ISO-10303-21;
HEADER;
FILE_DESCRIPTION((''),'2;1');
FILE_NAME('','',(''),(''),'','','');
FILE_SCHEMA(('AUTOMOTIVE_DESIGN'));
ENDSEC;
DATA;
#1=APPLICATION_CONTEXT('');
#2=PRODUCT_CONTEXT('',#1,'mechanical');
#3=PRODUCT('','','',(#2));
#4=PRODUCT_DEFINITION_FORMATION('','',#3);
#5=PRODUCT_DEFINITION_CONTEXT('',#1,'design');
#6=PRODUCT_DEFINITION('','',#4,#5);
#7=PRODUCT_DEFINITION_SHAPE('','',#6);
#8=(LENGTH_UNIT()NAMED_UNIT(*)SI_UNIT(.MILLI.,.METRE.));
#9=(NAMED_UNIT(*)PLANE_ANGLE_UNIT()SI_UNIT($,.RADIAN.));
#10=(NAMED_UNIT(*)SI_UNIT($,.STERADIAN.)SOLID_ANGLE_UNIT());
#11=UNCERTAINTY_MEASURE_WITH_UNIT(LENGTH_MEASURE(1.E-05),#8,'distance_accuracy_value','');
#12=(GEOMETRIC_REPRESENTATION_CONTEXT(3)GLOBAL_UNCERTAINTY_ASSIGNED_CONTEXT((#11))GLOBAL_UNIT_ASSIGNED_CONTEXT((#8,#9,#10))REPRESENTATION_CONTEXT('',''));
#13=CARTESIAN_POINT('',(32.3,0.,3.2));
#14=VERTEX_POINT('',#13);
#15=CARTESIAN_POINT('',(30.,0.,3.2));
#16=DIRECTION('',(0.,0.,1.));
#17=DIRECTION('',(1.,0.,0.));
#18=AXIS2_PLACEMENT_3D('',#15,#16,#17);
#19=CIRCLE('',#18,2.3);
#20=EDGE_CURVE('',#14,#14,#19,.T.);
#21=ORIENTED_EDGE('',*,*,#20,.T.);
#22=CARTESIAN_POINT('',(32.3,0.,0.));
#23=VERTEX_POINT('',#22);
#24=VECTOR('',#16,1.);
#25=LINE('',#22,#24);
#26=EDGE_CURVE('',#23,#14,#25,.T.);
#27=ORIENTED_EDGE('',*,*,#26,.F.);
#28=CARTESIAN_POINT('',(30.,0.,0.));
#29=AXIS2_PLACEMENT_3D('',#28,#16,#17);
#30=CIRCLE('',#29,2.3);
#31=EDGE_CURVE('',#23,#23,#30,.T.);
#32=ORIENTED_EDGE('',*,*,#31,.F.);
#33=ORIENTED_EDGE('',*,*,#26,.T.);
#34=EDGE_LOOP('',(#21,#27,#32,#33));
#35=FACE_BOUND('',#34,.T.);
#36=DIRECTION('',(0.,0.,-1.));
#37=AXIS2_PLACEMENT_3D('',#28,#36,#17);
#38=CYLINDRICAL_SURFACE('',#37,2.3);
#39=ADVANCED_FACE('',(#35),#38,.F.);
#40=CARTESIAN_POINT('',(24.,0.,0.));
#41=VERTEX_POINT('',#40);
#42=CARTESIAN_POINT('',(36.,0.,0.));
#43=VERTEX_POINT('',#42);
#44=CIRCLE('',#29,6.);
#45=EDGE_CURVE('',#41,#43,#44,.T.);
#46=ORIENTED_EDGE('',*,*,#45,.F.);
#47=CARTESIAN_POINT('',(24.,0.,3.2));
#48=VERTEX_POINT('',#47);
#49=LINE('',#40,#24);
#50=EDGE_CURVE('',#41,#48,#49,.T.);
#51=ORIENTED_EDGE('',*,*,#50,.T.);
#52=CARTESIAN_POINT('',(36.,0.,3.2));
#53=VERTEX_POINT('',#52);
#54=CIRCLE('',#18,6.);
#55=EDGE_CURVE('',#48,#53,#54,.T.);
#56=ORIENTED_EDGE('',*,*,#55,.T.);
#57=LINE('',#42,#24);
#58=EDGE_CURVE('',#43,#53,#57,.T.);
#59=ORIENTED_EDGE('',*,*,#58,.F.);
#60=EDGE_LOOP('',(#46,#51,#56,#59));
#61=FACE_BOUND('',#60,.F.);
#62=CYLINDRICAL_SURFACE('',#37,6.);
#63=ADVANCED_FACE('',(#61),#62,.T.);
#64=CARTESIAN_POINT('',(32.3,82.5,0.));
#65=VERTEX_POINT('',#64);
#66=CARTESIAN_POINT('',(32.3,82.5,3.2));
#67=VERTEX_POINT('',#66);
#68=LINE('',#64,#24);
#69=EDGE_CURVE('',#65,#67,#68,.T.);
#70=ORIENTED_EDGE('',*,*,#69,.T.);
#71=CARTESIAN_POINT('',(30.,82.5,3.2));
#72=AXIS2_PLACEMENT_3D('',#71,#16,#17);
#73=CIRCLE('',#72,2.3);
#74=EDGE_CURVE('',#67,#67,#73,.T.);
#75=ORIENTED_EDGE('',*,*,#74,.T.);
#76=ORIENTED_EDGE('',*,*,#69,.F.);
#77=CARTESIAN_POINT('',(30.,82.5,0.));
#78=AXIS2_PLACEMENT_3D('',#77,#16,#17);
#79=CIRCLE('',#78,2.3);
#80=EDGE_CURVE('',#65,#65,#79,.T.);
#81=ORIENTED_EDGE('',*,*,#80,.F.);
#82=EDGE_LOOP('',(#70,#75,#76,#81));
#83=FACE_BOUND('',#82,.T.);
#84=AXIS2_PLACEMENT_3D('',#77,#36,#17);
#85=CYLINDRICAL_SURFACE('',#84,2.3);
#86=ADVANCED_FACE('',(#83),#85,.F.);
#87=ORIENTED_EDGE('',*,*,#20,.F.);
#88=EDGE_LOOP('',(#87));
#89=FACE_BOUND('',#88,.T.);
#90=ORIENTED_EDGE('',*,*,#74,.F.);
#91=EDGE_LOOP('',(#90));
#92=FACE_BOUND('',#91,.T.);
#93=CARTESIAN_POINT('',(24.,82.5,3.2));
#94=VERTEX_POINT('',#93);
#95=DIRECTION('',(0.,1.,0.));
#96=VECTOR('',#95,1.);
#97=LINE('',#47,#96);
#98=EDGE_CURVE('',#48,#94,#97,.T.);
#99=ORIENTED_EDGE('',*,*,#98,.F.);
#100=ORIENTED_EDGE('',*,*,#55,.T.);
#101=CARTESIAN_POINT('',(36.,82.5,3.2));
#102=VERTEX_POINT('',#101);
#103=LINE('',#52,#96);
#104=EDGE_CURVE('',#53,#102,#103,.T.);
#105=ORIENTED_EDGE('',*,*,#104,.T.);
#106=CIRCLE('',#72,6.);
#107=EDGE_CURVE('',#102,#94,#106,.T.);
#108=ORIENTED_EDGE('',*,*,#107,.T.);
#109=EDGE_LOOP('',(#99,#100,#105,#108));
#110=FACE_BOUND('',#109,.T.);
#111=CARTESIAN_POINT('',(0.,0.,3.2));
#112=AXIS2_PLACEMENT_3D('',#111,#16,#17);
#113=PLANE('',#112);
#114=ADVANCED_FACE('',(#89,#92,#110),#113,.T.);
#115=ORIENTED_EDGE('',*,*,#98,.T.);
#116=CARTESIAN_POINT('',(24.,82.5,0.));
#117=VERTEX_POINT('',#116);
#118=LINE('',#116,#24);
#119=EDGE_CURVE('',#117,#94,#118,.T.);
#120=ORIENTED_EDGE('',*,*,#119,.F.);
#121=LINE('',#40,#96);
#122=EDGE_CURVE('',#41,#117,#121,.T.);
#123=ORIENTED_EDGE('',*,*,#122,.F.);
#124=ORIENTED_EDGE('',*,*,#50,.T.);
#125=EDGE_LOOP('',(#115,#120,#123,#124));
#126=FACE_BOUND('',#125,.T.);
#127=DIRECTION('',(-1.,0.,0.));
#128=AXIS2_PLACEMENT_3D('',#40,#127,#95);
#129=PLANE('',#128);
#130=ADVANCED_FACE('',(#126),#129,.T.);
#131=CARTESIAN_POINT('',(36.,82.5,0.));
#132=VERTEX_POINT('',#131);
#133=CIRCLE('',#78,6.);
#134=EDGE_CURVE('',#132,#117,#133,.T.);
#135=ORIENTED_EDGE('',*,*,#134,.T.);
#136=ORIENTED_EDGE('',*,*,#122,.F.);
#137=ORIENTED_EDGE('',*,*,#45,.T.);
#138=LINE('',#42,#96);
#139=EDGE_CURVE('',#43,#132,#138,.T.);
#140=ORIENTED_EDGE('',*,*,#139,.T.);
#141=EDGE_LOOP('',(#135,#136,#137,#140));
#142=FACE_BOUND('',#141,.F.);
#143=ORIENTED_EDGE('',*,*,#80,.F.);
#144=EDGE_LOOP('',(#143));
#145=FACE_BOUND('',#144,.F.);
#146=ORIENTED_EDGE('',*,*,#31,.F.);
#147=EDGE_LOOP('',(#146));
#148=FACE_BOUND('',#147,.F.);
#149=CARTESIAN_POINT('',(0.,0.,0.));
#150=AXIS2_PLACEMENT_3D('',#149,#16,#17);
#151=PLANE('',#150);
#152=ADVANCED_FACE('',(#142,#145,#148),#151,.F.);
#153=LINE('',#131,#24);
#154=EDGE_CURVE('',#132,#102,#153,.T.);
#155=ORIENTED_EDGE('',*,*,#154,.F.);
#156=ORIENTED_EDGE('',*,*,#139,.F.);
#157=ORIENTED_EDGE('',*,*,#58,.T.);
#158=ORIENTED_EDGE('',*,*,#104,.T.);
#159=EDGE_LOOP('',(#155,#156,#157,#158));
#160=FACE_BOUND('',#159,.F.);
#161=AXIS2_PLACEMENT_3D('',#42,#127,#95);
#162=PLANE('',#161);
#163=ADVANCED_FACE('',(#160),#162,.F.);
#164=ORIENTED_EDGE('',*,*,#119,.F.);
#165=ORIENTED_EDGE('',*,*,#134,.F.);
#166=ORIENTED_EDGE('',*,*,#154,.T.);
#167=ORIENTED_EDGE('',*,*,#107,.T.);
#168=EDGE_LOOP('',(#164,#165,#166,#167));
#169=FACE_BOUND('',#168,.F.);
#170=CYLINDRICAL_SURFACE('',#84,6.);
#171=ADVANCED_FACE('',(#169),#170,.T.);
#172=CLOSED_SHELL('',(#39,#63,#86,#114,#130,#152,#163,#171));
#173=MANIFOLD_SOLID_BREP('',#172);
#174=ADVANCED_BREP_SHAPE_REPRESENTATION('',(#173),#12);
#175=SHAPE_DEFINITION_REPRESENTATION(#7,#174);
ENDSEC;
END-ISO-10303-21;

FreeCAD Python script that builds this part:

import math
import FreeCAD as App
import Part
import Sketcher

doc = App.newDocument("Part")
body = doc.addObject("PartDesign::Body", "Body")

# Sketch on XY plane
sketch1 = body.newObject("Sketcher::SketchObject", "Sketch")
sketch1.AttachmentSupport = (doc.getObject("XY_Plane"), [""])
sketch1.MapMode = "FlatFace"
sketch1.addGeometry([
    Part.ArcOfCircle(Part.Circle(App.Vector(30, 0, 0), App.Vector(0, 0, 1), 6), math.radians(180), math.radians(360)),  # 0
    Part.LineSegment(App.Vector(36, 0, 0), App.Vector(36, 82.5, 0)),  # 1
    Part.ArcOfCircle(Part.Circle(App.Vector(30, 82.5, 0), App.Vector(0, 0, 1), 6), math.radians(0), math.radians(180)),  # 2
    Part.LineSegment(App.Vector(24, 82.5, 0), App.Vector(24, 0, 0)),  # 3
    Part.Circle(App.Vector(30, 0, 0), App.Vector(0, 0, 1), 2.3),  # 4
    Part.Circle(App.Vector(30, 82.5, 0), App.Vector(0, 0, 1), 2.3),  # 5
], False)
sketch1.addConstraint([
    Sketcher.Constraint("Tangent", 0, 2, 1, 1),
    Sketcher.Constraint("Tangent", 1, 2, 2, 1),
    Sketcher.Constraint("Tangent", 2, 2, 3, 1),
    Sketcher.Constraint("Tangent", 3, 2, 0, 1),
    Sketcher.Constraint("Vertical", 1),
    Sketcher.Constraint("Vertical", 3),
    Sketcher.Constraint("Coincident", 4, 3, 0, 3),
    Sketcher.Constraint("Coincident", 5, 3, 2, 3),
    Sketcher.Constraint("Equal", 4, 5),
    Sketcher.Constraint("PointOnObject", 0, 3, -1),
    Sketcher.Constraint("Radius", 0, 6.0),
    Sketcher.Constraint("DistanceY", 1, 1, 1, 2, 82.5),
    Sketcher.Constraint("Diameter", 4, 4.6),
    Sketcher.Constraint("DistanceX", -1, 1, 0, 3, 30.0),
])
pad1 = body.newObject("PartDesign::Pad", "Pad")
pad1.Profile = sketch1
pad1.Length = 3.2

doc.recompute()
